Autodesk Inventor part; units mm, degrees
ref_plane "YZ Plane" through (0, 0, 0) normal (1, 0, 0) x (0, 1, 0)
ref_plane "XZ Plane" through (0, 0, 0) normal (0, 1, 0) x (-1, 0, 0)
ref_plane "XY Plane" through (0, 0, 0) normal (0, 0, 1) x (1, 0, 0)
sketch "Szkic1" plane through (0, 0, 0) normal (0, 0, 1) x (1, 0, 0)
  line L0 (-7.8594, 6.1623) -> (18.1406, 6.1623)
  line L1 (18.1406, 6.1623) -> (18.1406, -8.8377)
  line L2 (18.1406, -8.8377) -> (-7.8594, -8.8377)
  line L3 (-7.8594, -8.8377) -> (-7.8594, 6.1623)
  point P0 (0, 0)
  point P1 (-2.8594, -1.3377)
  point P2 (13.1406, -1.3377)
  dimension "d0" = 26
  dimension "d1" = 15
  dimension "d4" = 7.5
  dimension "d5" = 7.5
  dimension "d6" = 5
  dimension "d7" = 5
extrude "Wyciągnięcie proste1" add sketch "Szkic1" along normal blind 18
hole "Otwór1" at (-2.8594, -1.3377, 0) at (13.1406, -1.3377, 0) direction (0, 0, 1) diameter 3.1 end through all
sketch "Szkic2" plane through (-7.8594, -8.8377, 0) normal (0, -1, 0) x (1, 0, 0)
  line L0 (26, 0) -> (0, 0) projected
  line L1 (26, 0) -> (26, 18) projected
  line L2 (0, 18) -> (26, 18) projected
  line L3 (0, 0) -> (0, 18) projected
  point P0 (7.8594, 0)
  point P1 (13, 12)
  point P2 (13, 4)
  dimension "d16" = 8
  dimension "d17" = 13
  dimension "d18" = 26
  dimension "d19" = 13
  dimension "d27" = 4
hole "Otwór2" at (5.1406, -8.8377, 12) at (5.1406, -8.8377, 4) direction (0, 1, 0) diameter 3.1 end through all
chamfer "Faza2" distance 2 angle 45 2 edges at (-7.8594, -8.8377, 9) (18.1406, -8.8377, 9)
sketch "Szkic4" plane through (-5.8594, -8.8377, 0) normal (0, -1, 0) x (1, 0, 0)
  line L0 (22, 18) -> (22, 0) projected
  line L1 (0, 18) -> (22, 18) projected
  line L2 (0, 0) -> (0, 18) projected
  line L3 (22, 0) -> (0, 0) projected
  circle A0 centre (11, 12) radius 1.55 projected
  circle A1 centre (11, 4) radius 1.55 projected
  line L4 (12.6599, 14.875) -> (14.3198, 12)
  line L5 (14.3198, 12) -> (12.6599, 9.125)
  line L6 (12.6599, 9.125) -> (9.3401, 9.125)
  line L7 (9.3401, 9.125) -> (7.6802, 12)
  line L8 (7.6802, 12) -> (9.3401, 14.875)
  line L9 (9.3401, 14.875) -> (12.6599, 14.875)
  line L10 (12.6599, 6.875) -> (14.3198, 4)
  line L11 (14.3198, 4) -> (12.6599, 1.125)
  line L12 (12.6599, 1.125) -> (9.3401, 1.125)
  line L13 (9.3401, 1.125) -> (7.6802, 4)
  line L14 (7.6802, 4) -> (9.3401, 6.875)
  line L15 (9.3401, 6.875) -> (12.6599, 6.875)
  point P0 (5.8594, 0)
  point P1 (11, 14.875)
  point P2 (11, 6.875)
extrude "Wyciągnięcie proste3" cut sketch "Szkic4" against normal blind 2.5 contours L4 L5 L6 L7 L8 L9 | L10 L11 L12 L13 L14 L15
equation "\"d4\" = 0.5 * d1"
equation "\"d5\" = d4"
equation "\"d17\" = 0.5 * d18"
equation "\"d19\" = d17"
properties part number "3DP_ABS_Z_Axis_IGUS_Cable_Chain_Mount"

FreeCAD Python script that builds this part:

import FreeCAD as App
import Part
import Sketcher

V = App.Vector
Q = App.Units.Quantity


def edges_at(feature, points):
    """Names of the edges that pass closest to the given points."""
    edges = feature.Shape.Edges
    near = lambda p: min(range(len(edges)), key=lambda i: edges[i].distToShape(Part.Vertex(*p))[0])
    return sorted({f"Edge{near(p) + 1}" for p in points})

doc = App.newDocument("Part")
params = doc.addObject("Spreadsheet::Sheet", "Params")
for row, (alias, value) in enumerate([
    ("sketch1_width", "26 mm"),
    ("sketch1_height", "15 mm"),
    ("pad1_length", "18 mm"),
    ("sketch2_diameter", "3.1 mm"),
    ("hole_diameter", "3.1 mm"),
    ("sketch3_diameter", "3.1 mm"),
    ("hole2_diameter", "3.1 mm"),
    ("chamfer_size", "2 mm"),
    ("sketch4_diameter", "3.1 mm"),
    ("pocket1_length", "2.5 mm"),
], start=1):
    params.set(f"A{row}", alias)
    params.set(f"B{row}", "=" + value)
    params.setAlias(f"B{row}", alias)

body = doc.addObject("PartDesign::Body", "Body")

# Sketch on XY plane
sketch1 = body.newObject("Sketcher::SketchObject", "Sketch")
sketch1.AttachmentSupport = (doc.getObject("XY_Plane"), [""])
sketch1.MapMode = "FlatFace"
sketch1.addGeometry([
    Part.LineSegment(V(18, 6, 0), V(-8, 6, 0)),
    Part.LineSegment(V(-8, 6, 0), V(-8, -9, 0)),
    Part.LineSegment(V(-8, -9, 0), V(18, -9, 0)),
    Part.LineSegment(V(18, -9, 0), V(18, 6, 0)),
], False)
sketch1.addConstraint([
    Sketcher.Constraint("Coincident", 0, 2, 1, 1),
    Sketcher.Constraint("Coincident", 1, 2, 2, 1),
    Sketcher.Constraint("Coincident", 2, 2, 3, 1),
    Sketcher.Constraint("Coincident", 3, 2, 0, 1),
    Sketcher.Constraint("Horizontal", 0),
    Sketcher.Constraint("Vertical", 1),
    Sketcher.Constraint("Horizontal", 2),
    Sketcher.Constraint("Vertical", 3),
    Sketcher.Constraint("DistanceX", 0, 2, 0, 1, 26.0),
    Sketcher.Constraint("DistanceY", 1, 2, 1, 1, 15.0),
    Sketcher.Constraint("DistanceX", 0, 2, -1, 1, 7.8594),
    Sketcher.Constraint("DistanceY", -1, 1, 0, 2, 6.1623),
])
sketch1.setExpression("Constraints[8]", "Params.sketch1_width")
sketch1.setExpression("Constraints[9]", "Params.sketch1_height")
pad1 = body.newObject("PartDesign::Pad", "Pad")
pad1.Profile = sketch1
pad1.setExpression("Length", "Params.pad1_length")

# Sketch on XY plane
sketch2 = body.newObject("Sketcher::SketchObject", "Sketch001")
sketch2.AttachmentSupport = (doc.getObject("XY_Plane"), [""])
sketch2.MapMode = "FlatFace"
sketch2.addGeometry([
    Part.Circle(V(-2.9, -1.3, 0), V(0, 0, 1), 1.6),
    Part.Circle(V(13.1, -1.3, 0), V(0, 0, 1), 1.6),
], False)
sketch2.addConstraint([
    Sketcher.Constraint("Equal", 0, 1),
    Sketcher.Constraint("Horizontal", 0, 3, 1, 3),
    Sketcher.Constraint("Diameter", 0, 3.1),
    Sketcher.Constraint("DistanceX", 0, 3, 1, 3, 16.0),
    Sketcher.Constraint("DistanceX", 0, 3, -1, 1, 2.8594),
    Sketcher.Constraint("DistanceY", 0, 3, -1, 1, 1.3377),
])
sketch2.setExpression("Constraints[2]", "Params.sketch2_diameter")
doc.recompute()
hole = body.newObject("PartDesign::Hole", "Hole")
hole.Profile = sketch2
hole.ThreadType = "None"
hole.setExpression("Diameter", "Params.hole_diameter")
hole.DepthType = "ThroughAll"
hole.Reversed = True

# Sketch on XZ plane
sketch3 = body.newObject("Sketcher::SketchObject", "Sketch002")
sketch3.AttachmentSupport = (doc.getObject("XZ_Plane"), [""])
sketch3.MapMode = "FlatFace"
sketch3.AttachmentOffset = App.Placement(V(0, 0, 8.8377), App.Rotation())
sketch3.addGeometry([
    Part.Circle(V(5.1, 12, 0), V(0, 0, 1), 1.6),
    Part.Circle(V(5.1, 4, 0), V(0, 0, 1), 1.6),
], False)
sketch3.addConstraint([
    Sketcher.Constraint("Equal", 0, 1),
    Sketcher.Constraint("Vertical", 0, 3, 1, 3),
    Sketcher.Constraint("Diameter", 0, 3.1),
    Sketcher.Constraint("DistanceY", -1, 1, 0, 3, 12.0),
    Sketcher.Constraint("DistanceY", -1, 1, 1, 3, 4.0),
    Sketcher.Constraint("DistanceX", -1, 1, 0, 3, 5.1406),
])
sketch3.setExpression("Constraints[2]", "Params.sketch3_diameter")
doc.recompute()
hole2 = body.newObject("PartDesign::Hole", "Hole001")
hole2.Profile = sketch3
hole2.ThreadType = "None"
hole2.setExpression("Diameter", "Params.hole2_diameter")
hole2.DepthType = "ThroughAll"
doc.recompute()

chamfer = body.newObject("PartDesign::Chamfer", "Chamfer")
chamfer.Base = (hole2, edges_at(hole2, [(-7.859, -8.838, 9), (18.141, -8.838, 9)]))
chamfer.setExpression("Size", "Params.chamfer_size")

# Sketch on XZ plane
sketch4 = body.newObject("Sketcher::SketchObject", "Sketch003")
sketch4.AttachmentSupport = (doc.getObject("XZ_Plane"), [""])
sketch4.MapMode = "FlatFace"
sketch4.AttachmentOffset = App.Placement(V(0, 0, 8.8377), App.Rotation())
sketch4.addGeometry([
    Part.LineSegment(V(8.5, 12, 0), V(6.8, 14.9, 0)),  # 0
    Part.LineSegment(V(6.8, 14.9, 0), V(3.5, 14.9, 0)),  # 1
    Part.LineSegment(V(3.5, 14.9, 0), V(1.8, 12, 0)),  # 2
    Part.LineSegment(V(1.8, 12, 0), V(3.5, 9.1, 0)),  # 3
    Part.LineSegment(V(3.5, 9.1, 0), V(6.8, 9.1, 0)),  # 4
    Part.LineSegment(V(6.8, 9.1, 0), V(8.5, 12, 0)),  # 5
    Part.Circle(V(5.1, 12, 0), V(0, 0, 1), 1.6),  # 6
    Part.LineSegment(V(8.5, 4, 0), V(6.8, 6.9, 0)),  # 7
    Part.LineSegment(V(6.8, 6.9, 0), V(3.5, 6.9, 0)),  # 8
    Part.LineSegment(V(3.5, 6.9, 0), V(1.8, 4, 0)),  # 9
    Part.LineSegment(V(1.8, 4, 0), V(3.5, 1.1, 0)),  # 10
    Part.LineSegment(V(3.5, 1.1, 0), V(6.8, 1.1, 0)),  # 11
    Part.LineSegment(V(6.8, 1.1, 0), V(8.5, 4, 0)),  # 12
    Part.Circle(V(5.1, 4, 0), V(0, 0, 1), 1.6),  # 13
], False)
sketch4.addConstraint([
    Sketcher.Constraint("Coincident", 0, 2, 1, 1),
    Sketcher.Constraint("Coincident", 1, 2, 2, 1),
    Sketcher.Constraint("Coincident", 2, 2, 3, 1),
    Sketcher.Constraint("Coincident", 3, 2, 4, 1),
    Sketcher.Constraint("Coincident", 4, 2, 5, 1),
    Sketcher.Constraint("Coincident", 5, 2, 0, 1),
    Sketcher.Constraint("Coincident", 7, 2, 8, 1),
    Sketcher.Constraint("Coincident", 8, 2, 9, 1),
    Sketcher.Constraint("Coincident", 9, 2, 10, 1),
    Sketcher.Constraint("Coincident", 10, 2, 11, 1),
    Sketcher.Constraint("Coincident", 11, 2, 12, 1),
    Sketcher.Constraint("Coincident", 12, 2, 7, 1),
    Sketcher.Constraint("Horizontal", 1),
    Sketcher.Constraint("Horizontal", 4),
    Sketcher.Constraint("Horizontal", 8),
    Sketcher.Constraint("Horizontal", 11),
    Sketcher.Constraint("Equal", 6, 13),
    Sketcher.Constraint("Parallel", 0, 3),
    Sketcher.Constraint("Parallel", 2, 5),
    Sketcher.Constraint("Parallel", 3, 7),
    Sketcher.Constraint("Parallel", 5, 9),
    Sketcher.Constraint("Parallel", 7, 10),
    Sketcher.Constraint("Parallel", 9, 12),
    Sketcher.Constraint("Horizontal", 6, 3, 2, 2),
    Sketcher.Constraint("Horizontal", 2, 2, 5, 2),
    Sketcher.Constraint("Horizontal", 13, 3, 9, 2),
    Sketcher.Constraint("Horizontal", 9, 2, 12, 2),
    Sketcher.Constraint("Vertical", 6, 3, 13, 3),
    Sketcher.Constraint("Vertical", 1, 2, 3, 2),
    Sketcher.Constraint("Vertical", 0, 2, 4, 2),
    Sketcher.Constraint("Vertical", 4, 2, 7, 2),
    Sketcher.Constraint("Vertical", 3, 2, 8, 2),
    Sketcher.Constraint("Vertical", 2, 2, 9, 2),
    Sketcher.Constraint("Vertical", 8, 2, 10, 2),
    Sketcher.Constraint("Diameter", 6, 3.1),
    Sketcher.Constraint("Angle", 0, Q("120.0003 deg")),
    Sketcher.Constraint("DistanceY", -1, 1, 6, 3, 12.0),
    Sketcher.Constraint("DistanceY", -1, 1, 13, 3, 4.0),
    Sketcher.Constraint("DistanceX", 6, 3, 0, 2, 1.66),
    Sketcher.Constraint("DistanceX", 1, 2, 6, 3, 1.66),
    Sketcher.Constraint("DistanceX", 2, 2, 1, 2, 1.66),
    Sketcher.Constraint("DistanceX", -1, 1, 6, 3, 5.1406),
])
sketch4.setExpression("Constraints[34]", "Params.sketch4_diameter")
pocket1 = body.newObject("PartDesign::Pocket", "Pocket")
pocket1.Profile = sketch4
pocket1.setExpression("Length", "Params.pocket1_length")

doc.recompute()
